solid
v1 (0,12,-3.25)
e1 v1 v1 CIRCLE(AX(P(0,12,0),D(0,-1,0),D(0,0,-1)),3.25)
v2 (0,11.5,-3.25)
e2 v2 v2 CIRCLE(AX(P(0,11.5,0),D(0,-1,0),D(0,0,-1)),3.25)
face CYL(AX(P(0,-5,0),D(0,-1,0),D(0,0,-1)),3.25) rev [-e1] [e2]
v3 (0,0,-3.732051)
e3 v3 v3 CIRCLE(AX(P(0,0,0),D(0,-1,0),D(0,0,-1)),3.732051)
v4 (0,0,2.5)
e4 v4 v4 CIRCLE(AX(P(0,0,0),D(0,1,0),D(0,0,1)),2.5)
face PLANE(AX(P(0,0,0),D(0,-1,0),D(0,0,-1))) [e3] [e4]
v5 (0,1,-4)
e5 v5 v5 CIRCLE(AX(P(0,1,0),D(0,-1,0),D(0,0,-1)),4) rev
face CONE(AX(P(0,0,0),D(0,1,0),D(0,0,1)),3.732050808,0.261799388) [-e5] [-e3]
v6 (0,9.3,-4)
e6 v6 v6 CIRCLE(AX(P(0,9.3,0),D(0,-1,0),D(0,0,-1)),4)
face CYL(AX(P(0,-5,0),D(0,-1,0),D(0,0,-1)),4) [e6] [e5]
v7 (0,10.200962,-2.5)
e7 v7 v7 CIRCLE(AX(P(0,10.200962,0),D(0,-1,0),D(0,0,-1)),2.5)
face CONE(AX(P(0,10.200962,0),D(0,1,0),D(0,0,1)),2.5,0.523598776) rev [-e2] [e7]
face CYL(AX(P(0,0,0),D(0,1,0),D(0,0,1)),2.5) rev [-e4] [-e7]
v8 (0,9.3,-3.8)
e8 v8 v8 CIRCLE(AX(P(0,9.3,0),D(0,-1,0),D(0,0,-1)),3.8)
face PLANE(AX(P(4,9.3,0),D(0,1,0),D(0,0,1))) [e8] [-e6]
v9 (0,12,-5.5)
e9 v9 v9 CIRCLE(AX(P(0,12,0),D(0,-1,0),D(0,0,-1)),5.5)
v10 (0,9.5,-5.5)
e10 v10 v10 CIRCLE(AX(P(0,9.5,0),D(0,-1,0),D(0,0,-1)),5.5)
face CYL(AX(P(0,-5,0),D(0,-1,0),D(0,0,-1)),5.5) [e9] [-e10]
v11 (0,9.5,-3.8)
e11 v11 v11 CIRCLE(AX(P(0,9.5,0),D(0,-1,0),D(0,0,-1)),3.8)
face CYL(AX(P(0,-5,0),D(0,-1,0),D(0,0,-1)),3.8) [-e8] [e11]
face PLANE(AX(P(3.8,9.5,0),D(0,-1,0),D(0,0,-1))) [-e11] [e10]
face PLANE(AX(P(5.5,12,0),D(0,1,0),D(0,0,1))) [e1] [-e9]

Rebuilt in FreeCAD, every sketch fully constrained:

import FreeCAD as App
import Part
import Sketcher

V = App.Vector
Q = App.Units.Quantity


def edges_at(feature, points):
    """Names of the edges that pass closest to the given points."""
    edges = feature.Shape.Edges
    near = lambda p: min(range(len(edges)), key=lambda i: edges[i].distToShape(Part.Vertex(*p))[0])
    return sorted({f"Edge{near(p) + 1}" for p in points})


def add_polygon(sketch, points):
    """Adds a closed chain of lines whose ends are joined by coincident constraints."""
    first, n = sketch.GeometryCount, len(points)
    for a, b in zip(points, points[1:] + points[:1]):
        sketch.addGeometry(Part.LineSegment(App.Vector(*a, 0), App.Vector(*b, 0)), False)
    for i in range(n):
        sketch.addConstraint(Sketcher.Constraint("Coincident", first + i, 2, first + (i + 1) % n, 1))

doc = App.newDocument("Part")
body = doc.addObject("PartDesign::Body", "Body")

sketch1 = body.newObject("Sketcher::SketchObject", "Sketch")
sketch1.AttachmentSupport = (doc.getObject("XY_Plane"), [""])
sketch1.MapMode = "FlatFace"
add_polygon(sketch1, [(0, 0), (4, 0), (4, 9.3), (3.8, 9.3), (3.8, 9.5), (5.5, 9.5), (5.5, 12), (0, 12)])
sketch1.addConstraint(Sketcher.Constraint("Horizontal", 0))
sketch1.addConstraint(Sketcher.Constraint("Vertical", 1))
sketch1.addConstraint(Sketcher.Constraint("Horizontal", 2))
sketch1.addConstraint(Sketcher.Constraint("Vertical", 3))
sketch1.addConstraint(Sketcher.Constraint("Horizontal", 4))
sketch1.addConstraint(Sketcher.Constraint("Vertical", 5))
sketch1.addConstraint(Sketcher.Constraint("Horizontal", 6))
sketch1.addConstraint(Sketcher.Constraint("Vertical", 7))
sketch1.addConstraint(Sketcher.Constraint("Coincident", 7, 2, -1, 1))
sketch1.addConstraint(Sketcher.Constraint("Equal", 2, 3))
sketch1.addConstraint(Sketcher.Constraint("DistanceX", 0, 1, 0, 2, Q("4 mm")))
sketch1.addConstraint(Sketcher.Constraint("DistanceY", 7, 2, 7, 1, Q("12 mm")))
sketch1.addConstraint(Sketcher.Constraint("DistanceX", 2, 2, 2, 1, Q("0.2 mm")))
sketch1.addConstraint(Sketcher.Constraint("DistanceX", 4, 1, 4, 2, Q("1.7 mm")))
sketch1.addConstraint(Sketcher.Constraint("DistanceY", 1, 1, 1, 2, Q("9.3 mm")))
revolution = body.newObject("PartDesign::Revolution", "Revolution")
revolution.Profile = sketch1
revolution.ReferenceAxis = (sketch1, ["V_Axis"])
revolution.Angle = 360

sketch2 = body.newObject("Sketcher::SketchObject", "Sketch001")
sketch2.AttachmentSupport = (doc.getObject("XZ_Plane"), [""])
sketch2.MapMode = "FlatFace"
sketch2.AttachmentOffset = App.Placement(V(0, 0, -12), App.Rotation())
sketch2.addGeometry(Part.Circle(V(0, 0, 0), V(0, 0, 1), 2.5), False)
sketch2.addConstraint(Sketcher.Constraint("Coincident", 0, 3, -1, 1))
sketch2.addConstraint(Sketcher.Constraint("Diameter", 0, Q("5 mm")))
pocket1 = body.newObject("PartDesign::Pocket", "Pocket")
pocket1.Profile = sketch2
pocket1.Type = "ThroughAll"
pocket1.Reversed = True
doc.recompute()

chamfer = body.newObject("PartDesign::Chamfer", "Chamfer")
chamfer.Base = (pocket1, edges_at(pocket1, [(0, 0, 4)]))
chamfer.ChamferType = "Two distances"
chamfer.Size = 1
chamfer.Size2 = 0.267949
chamfer.FlipDirection = True

sketch3 = body.newObject("Sketcher::SketchObject", "Sketch002")
sketch3.AttachmentSupport = (doc.getObject("XY_Plane"), [""])
sketch3.MapMode = "FlatFace"
add_polygon(sketch3, [(3.2, 12), (0, 12), (0, 10.2), (2.5, 10.2), (3.2, 11.5)])
sketch3.addConstraint(Sketcher.Constraint("Horizontal", 0))
sketch3.addConstraint(Sketcher.Constraint("Vertical", 1))
sketch3.addConstraint(Sketcher.Constraint("Horizontal", 2))
sketch3.addConstraint(Sketcher.Constraint("Vertical", 4))
sketch3.addConstraint(Sketcher.Constraint("PointOnObject", 0, 2, -2))
sketch3.addConstraint(Sketcher.Constraint("Angle", 3, Q("60 deg")))
sketch3.addConstraint(Sketcher.Constraint("DistanceX", 2, 1, 2, 2, Q("2.5 mm")))
sketch3.addConstraint(Sketcher.Constraint("DistanceY", 4, 1, 4, 2, Q("0.5 mm")))
sketch3.addConstraint(Sketcher.Constraint("DistanceY", -1, 1, 0, 2, Q("12 mm")))
sketch3.addConstraint(Sketcher.Constraint("Distance", 3, Q("1.5 mm")))
groove = body.newObject("PartDesign::Groove", "Groove")
groove.Profile = sketch3
groove.ReferenceAxis = (sketch3, ["V_Axis"])
groove.Angle = 360

doc.recompute()
